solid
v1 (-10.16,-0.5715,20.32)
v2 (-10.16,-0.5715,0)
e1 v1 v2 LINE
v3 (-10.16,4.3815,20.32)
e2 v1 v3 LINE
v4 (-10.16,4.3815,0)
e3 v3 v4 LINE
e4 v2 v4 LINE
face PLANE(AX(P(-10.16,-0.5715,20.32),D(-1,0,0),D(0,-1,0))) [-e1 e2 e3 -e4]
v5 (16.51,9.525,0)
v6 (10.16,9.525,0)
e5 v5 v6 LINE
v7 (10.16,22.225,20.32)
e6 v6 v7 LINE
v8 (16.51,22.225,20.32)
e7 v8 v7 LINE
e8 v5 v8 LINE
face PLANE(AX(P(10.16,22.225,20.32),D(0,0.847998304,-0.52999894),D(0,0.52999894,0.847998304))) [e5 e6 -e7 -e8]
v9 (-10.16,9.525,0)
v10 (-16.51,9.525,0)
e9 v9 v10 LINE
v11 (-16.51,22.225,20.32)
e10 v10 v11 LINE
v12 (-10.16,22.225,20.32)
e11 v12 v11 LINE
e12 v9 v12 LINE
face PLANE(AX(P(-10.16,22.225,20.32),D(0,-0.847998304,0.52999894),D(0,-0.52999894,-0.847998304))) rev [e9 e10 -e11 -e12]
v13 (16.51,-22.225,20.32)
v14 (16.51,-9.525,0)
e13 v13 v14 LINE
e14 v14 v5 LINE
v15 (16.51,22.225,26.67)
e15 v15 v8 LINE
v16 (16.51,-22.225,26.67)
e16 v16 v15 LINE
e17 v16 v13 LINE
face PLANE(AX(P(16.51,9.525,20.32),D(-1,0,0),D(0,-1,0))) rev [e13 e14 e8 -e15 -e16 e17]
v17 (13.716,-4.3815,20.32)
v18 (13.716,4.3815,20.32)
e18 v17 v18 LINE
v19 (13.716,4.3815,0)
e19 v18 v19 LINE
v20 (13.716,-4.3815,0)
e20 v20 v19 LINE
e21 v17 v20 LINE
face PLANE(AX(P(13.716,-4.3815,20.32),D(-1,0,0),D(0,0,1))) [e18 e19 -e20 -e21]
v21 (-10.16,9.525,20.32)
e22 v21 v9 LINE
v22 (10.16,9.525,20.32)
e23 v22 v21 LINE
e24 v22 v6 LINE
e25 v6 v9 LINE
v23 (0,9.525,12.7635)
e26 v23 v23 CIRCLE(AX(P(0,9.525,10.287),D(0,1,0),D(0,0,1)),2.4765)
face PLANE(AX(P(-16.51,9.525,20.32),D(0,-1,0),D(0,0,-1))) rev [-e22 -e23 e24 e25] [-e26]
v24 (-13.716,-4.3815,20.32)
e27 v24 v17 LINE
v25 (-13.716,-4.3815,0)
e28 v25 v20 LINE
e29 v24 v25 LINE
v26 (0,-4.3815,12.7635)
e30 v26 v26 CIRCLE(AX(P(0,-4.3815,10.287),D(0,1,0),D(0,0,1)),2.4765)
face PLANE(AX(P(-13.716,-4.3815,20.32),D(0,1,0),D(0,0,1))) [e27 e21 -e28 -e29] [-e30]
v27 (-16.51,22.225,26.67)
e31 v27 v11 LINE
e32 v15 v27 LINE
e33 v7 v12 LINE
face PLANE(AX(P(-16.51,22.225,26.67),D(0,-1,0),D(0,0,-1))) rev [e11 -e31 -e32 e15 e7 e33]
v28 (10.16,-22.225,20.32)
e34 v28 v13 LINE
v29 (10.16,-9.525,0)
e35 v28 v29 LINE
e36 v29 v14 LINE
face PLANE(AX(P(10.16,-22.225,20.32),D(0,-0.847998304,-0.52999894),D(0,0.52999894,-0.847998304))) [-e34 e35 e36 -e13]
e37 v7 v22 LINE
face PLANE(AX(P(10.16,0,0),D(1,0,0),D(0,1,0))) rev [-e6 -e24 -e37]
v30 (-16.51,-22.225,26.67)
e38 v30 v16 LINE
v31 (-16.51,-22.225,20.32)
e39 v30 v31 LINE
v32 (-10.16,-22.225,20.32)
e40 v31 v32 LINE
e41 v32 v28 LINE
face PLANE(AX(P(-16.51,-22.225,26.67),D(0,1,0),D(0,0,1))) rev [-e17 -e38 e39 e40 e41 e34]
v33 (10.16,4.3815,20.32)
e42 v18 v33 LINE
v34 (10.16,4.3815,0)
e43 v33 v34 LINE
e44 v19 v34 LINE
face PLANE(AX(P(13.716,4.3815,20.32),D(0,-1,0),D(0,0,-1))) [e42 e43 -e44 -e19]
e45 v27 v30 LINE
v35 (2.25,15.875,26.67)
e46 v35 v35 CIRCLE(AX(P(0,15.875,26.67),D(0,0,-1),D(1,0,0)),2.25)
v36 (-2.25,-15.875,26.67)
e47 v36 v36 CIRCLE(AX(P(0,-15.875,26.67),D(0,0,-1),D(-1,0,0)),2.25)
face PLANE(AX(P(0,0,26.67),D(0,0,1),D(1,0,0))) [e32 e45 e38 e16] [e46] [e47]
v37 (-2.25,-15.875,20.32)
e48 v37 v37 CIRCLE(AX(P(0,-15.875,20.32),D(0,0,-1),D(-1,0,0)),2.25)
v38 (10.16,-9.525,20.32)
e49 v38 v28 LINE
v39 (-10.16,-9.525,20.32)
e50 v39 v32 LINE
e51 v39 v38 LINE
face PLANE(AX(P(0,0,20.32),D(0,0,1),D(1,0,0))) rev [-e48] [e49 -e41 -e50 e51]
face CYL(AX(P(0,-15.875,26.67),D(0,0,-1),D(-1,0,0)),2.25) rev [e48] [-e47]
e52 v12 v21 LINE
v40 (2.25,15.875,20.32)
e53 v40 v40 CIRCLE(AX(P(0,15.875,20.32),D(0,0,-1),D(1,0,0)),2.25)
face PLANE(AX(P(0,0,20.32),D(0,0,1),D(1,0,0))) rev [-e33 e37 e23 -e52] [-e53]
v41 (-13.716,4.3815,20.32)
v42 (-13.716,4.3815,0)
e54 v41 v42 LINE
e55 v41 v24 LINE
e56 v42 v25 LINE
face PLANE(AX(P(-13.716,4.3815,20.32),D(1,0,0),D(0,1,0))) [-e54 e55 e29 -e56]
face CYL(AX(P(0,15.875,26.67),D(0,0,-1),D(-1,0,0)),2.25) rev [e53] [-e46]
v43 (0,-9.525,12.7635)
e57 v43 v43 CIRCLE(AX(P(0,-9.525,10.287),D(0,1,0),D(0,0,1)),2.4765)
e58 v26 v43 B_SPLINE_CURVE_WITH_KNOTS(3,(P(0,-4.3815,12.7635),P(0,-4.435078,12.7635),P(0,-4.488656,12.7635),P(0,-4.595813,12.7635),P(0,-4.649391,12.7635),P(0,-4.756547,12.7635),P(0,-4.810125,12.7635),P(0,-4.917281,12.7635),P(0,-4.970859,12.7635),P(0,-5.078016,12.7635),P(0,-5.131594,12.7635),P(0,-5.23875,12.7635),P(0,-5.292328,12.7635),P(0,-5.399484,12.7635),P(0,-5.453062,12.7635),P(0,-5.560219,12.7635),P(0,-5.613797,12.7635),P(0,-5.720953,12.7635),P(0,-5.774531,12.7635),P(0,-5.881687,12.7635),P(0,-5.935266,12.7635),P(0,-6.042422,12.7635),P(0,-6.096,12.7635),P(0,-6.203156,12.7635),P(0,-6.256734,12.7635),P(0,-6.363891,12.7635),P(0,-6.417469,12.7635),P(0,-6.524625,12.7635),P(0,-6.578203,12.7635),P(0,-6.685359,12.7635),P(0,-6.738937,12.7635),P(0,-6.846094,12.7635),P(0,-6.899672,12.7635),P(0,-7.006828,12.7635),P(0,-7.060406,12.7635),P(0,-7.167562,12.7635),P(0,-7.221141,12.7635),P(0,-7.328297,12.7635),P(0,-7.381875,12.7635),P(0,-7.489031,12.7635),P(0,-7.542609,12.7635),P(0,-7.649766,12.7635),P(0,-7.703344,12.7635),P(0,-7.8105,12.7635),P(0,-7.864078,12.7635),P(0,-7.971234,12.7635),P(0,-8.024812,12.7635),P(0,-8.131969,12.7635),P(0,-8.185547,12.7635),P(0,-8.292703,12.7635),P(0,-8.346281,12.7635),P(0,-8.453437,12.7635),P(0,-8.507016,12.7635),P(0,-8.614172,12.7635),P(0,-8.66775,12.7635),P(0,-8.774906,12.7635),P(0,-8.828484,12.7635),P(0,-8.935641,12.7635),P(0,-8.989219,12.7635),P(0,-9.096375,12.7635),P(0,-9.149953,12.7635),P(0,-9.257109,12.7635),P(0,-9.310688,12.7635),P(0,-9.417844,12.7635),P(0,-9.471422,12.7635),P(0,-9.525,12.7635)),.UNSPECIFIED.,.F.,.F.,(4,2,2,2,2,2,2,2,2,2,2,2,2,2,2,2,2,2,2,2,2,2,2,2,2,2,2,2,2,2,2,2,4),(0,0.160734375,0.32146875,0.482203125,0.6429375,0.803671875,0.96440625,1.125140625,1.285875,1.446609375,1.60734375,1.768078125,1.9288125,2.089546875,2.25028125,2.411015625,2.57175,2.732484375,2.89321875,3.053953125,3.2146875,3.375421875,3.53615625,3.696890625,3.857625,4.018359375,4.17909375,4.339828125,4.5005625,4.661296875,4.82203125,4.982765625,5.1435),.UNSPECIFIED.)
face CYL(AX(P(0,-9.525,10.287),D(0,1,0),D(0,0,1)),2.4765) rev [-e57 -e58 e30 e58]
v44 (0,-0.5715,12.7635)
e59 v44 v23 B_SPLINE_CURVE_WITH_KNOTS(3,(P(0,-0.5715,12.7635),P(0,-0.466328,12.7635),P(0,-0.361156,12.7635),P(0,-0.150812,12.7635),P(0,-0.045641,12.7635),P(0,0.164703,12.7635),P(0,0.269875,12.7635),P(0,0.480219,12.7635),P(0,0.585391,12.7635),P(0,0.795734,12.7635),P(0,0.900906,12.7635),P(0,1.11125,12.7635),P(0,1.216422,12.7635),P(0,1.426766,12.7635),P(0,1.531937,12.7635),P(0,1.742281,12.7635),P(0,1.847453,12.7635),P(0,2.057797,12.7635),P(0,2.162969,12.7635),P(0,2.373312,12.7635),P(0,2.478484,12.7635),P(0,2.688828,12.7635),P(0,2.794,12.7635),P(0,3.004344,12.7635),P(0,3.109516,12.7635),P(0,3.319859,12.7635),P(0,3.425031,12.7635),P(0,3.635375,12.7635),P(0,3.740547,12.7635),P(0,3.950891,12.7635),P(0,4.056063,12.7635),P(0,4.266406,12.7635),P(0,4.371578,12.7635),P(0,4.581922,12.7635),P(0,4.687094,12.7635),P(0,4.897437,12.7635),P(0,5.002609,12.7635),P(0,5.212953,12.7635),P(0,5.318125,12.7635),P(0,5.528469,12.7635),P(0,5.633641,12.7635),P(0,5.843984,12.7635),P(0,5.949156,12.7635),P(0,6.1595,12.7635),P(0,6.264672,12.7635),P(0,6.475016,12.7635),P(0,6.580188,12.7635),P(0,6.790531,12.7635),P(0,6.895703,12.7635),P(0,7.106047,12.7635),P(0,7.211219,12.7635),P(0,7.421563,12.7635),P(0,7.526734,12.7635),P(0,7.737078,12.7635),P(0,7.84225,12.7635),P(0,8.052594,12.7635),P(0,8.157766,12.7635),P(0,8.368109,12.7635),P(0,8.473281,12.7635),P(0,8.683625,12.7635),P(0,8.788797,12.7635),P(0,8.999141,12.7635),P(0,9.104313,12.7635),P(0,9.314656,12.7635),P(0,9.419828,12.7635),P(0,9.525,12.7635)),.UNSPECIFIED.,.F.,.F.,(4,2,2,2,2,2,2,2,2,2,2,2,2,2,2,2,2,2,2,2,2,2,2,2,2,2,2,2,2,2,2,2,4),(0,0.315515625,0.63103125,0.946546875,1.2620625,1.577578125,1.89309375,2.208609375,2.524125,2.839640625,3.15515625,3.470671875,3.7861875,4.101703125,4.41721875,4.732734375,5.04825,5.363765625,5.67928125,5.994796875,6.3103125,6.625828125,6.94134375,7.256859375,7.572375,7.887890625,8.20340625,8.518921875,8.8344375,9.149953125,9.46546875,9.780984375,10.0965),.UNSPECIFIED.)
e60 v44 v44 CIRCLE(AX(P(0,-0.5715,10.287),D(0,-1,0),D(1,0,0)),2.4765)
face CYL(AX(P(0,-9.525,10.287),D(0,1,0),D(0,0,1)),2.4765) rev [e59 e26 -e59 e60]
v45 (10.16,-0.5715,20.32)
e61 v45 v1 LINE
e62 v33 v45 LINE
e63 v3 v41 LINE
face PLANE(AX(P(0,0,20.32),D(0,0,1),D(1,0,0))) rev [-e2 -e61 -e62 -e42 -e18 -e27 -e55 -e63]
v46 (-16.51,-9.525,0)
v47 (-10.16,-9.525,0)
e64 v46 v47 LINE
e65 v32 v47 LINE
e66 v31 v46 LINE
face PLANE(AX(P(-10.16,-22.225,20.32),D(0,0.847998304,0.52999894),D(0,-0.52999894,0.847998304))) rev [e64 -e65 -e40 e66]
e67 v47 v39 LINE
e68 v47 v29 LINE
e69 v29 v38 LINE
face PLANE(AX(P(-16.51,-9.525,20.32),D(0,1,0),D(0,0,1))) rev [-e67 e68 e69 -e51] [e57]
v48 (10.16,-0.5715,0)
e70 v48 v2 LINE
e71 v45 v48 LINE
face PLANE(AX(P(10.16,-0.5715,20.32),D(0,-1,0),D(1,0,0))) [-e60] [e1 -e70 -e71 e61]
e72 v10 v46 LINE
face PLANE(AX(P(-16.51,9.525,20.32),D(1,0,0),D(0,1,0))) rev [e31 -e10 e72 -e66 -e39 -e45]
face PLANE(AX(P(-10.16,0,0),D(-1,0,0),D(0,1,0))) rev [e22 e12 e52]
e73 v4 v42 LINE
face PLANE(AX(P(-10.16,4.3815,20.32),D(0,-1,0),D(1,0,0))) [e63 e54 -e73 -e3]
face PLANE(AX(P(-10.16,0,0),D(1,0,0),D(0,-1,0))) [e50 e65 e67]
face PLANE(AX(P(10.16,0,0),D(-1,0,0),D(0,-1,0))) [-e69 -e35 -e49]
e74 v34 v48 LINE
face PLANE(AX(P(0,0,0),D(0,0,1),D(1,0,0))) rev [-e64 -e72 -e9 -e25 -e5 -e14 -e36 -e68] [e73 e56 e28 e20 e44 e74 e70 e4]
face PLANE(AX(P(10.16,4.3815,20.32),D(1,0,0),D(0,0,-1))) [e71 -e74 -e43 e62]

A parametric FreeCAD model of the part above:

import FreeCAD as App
import Part
import Sketcher
from FreeCAD import Vector
Q = App.Units.Quantity


def add_polygon(sketch, points):
    """Adds a closed chain of lines whose ends are joined by coincident constraints."""
    first, n = sketch.GeometryCount, len(points)
    for a, b in zip(points, points[1:] + points[:1]):
        sketch.addGeometry(Part.LineSegment(App.Vector(*a, 0), App.Vector(*b, 0)), False)
    for i in range(n):
        sketch.addConstraint(Sketcher.Constraint("Coincident", first + i, 2, first + (i + 1) % n, 1))

doc = App.newDocument("Part")
body = doc.addObject("PartDesign::Body", "Body")

# Sketch on XY plane
sketch1 = body.newObject("Sketcher::SketchObject", "Sketch")
sketch1.AttachmentSupport = (doc.getObject("XY_Plane"), [""])
sketch1.MapMode = "FlatFace"
add_polygon(sketch1, [(-16.5, 9.5), (-16.5, -9.5), (16.5, -9.5), (16.5, 9.5)])  # lines 0-3
add_polygon(sketch1, [(-13.7, -4.4), (-13.7, 4.4), (-10.2, 4.4), (-10.2, -0.6), (10.2, -0.6), (10.2, 4.4), (13.7, 4.4), (13.7, -4.4)])  # lines 4-11
sketch1.addConstraint(Sketcher.Constraint("Vertical", 0))
sketch1.addConstraint(Sketcher.Constraint("Horizontal", 1))
sketch1.addConstraint(Sketcher.Constraint("Vertical", 2))
sketch1.addConstraint(Sketcher.Constraint("Horizontal", 3))
sketch1.addConstraint(Sketcher.Constraint("Vertical", 4))
sketch1.addConstraint(Sketcher.Constraint("Horizontal", 5))
sketch1.addConstraint(Sketcher.Constraint("Vertical", 6))
sketch1.addConstraint(Sketcher.Constraint("Horizontal", 7))
sketch1.addConstraint(Sketcher.Constraint("Vertical", 8))
sketch1.addConstraint(Sketcher.Constraint("Horizontal", 9))
sketch1.addConstraint(Sketcher.Constraint("Vertical", 10))
sketch1.addConstraint(Sketcher.Constraint("Horizontal", 11))
sketch1.addConstraint(Sketcher.Constraint("Symmetric", 0, 2, 2, 2, -1, 1))
sketch1.addConstraint(Sketcher.Constraint("Symmetric", 4, 2, 10, 2, -1, 1))
sketch1.addConstraint(Sketcher.Constraint("Symmetric", 5, 2, 8, 2, -2))
sketch1.addConstraint(Sketcher.Constraint("DistanceX", 1, 1, 1, 2, Q("1.3 in")))
sketch1.addConstraint(Sketcher.Constraint("DistanceX", 7, 1, 7, 2, Q("0.8 in")))
sketch1.addConstraint(Sketcher.Constraint("DistanceX", 5, 1, 5, 2, Q("0.14 in")))
sketch1.addConstraint(Sketcher.Constraint("DistanceY", 0, 2, 0, 1, Q("0.75 in")))
sketch1.addConstraint(Sketcher.Constraint("DistanceY", 4, 1, 4, 2, Q("0.345 in")))
sketch1.addConstraint(Sketcher.Constraint("DistanceY", 6, 2, 6, 1, Q("0.195 in")))
pad1 = body.newObject("PartDesign::Pad", "Pad")
pad1.Profile = sketch1
pad1.Length = Q("0.8 in")

# Sketch on XZ plane
sketch2 = body.newObject("Sketcher::SketchObject", "Sketch001")
sketch2.AttachmentSupport = (doc.getObject("XZ_Plane"), [""])
sketch2.MapMode = "FlatFace"
sketch2.AttachmentOffset = App.Placement(Vector(0, 0, -0.375 * 25.4), App.Rotation())
sketch2.addGeometry(Part.Circle(Vector(0, 10.3, 0), Vector(0, 0, 1), 2.5), False)
sketch2.addConstraint(Sketcher.Constraint("PointOnObject", 0, 3, -2))
sketch2.addConstraint(Sketcher.Constraint("Diameter", 0, Q("0.195 in")))
sketch2.addConstraint(Sketcher.Constraint("DistanceY", -1, 1, 0, 3, Q("0.405 in")))
pocket1 = body.newObject("PartDesign::Pocket", "Pocket")
pocket1.Profile = sketch2
pocket1.Type = "ThroughAll"
pocket1.Reversed = True

# Sketch on XY plane
sketch3 = body.newObject("Sketcher::SketchObject", "Sketch002")
sketch3.AttachmentSupport = (doc.getObject("XY_Plane"), [""])
sketch3.MapMode = "FlatFace"
sketch3.AttachmentOffset = App.Placement(Vector(0, 0, 0.8 * 25.4), App.Rotation())
add_polygon(sketch3, [(-17, 22), (-17, -22), (17, -22), (17, 22)])  # lines 0-3
sketch3.addConstraint(Sketcher.Constraint("Vertical", 0))
sketch3.addConstraint(Sketcher.Constraint("Horizontal", 1))
sketch3.addConstraint(Sketcher.Constraint("Vertical", 2))
sketch3.addConstraint(Sketcher.Constraint("Horizontal", 3))
sketch3.addConstraint(Sketcher.Constraint("Symmetric", 0, 2, 2, 2, -1, 1))
sketch3.addConstraint(Sketcher.Constraint("DistanceX", 1, 1, 1, 2, Q("1.3 in")))
sketch3.addConstraint(Sketcher.Constraint("DistanceY", 0, 2, 0, 1, Q("1.75 in")))
pad2 = body.newObject("PartDesign::Pad", "Pad001")
pad2.Profile = sketch3
pad2.Length = Q("0.25 in")

# Sketch on YZ plane
sketch4 = body.newObject("Sketcher::SketchObject", "Sketch003")
sketch4.AttachmentSupport = (doc.getObject("YZ_Plane"), [""])
sketch4.MapMode = "FlatFace"
sketch4.AttachmentOffset = App.Placement(Vector(0, 0, 0.65 * 25.4), App.Rotation())
add_polygon(sketch4, [(-22, 20), (-10, 0), (-10, 20)])  # lines 0-2
add_polygon(sketch4, [(10, 0), (22, 20), (10, 20)])  # lines 3-5
sketch4.addConstraint(Sketcher.Constraint("Vertical", 1))
sketch4.addConstraint(Sketcher.Constraint("Horizontal", 2))
sketch4.addConstraint(Sketcher.Constraint("Horizontal", 4))
sketch4.addConstraint(Sketcher.Constraint("Vertical", 5))
sketch4.addConstraint(Sketcher.Constraint("Symmetric", 0, 2, 5, 2, -1, 1))
sketch4.addConstraint(Sketcher.Constraint("Symmetric", 2, 2, 3, 2, -2))
sketch4.addConstraint(Sketcher.Constraint("PointOnObject", 0, 2, -1))
sketch4.addConstraint(Sketcher.Constraint("DistanceX", 2, 2, 2, 1, Q("0.5 in")))
sketch4.addConstraint(Sketcher.Constraint("DistanceY", 1, 1, 1, 2, Q("0.8 in")))
sketch4.addConstraint(Sketcher.Constraint("DistanceX", 1, 2, 3, 2, Q("1.25 in")))
pad3 = body.newObject("PartDesign::Pad", "Pad002")
pad3.Profile = sketch4
pad3.Length = Q("0.25 in")
pad3.Reversed = True
doc.recompute()

mirrored = body.newObject("PartDesign::Mirrored", "Mirrored")
mirrored.Originals = [pad3]
mirrored.MirrorPlane = (doc.getObject("YZ_Plane"), [""])
body.Tip = mirrored

# Sketch on XY plane
sketch5 = body.newObject("Sketcher::SketchObject", "Sketch004")
sketch5.AttachmentSupport = (doc.getObject("XY_Plane"), [""])
sketch5.MapMode = "FlatFace"
sketch5.AttachmentOffset = App.Placement(Vector(0, 0, 0.8 * 25.4), App.Rotation())
sketch5.addGeometry(Part.Circle(Vector(0, -15.9, 0), Vector(0, 0, 1), 2.2), False)
sketch5.addGeometry(Part.Circle(Vector(0, 15.9, 0), Vector(0, 0, 1), 2.2), False)
sketch5.addConstraint(Sketcher.Constraint("Equal", 0, 1))
sketch5.addConstraint(Sketcher.Constraint("Symmetric", 0, 3, 1, 3, -1, 1))
sketch5.addConstraint(Sketcher.Constraint("PointOnObject", 0, 3, -2))
sketch5.addConstraint(Sketcher.Constraint("Diameter", 0, Q("4.5 mm")))
sketch5.addConstraint(Sketcher.Constraint("DistanceY", 0, 3, 1, 3, Q("1.25 in")))
pocket2 = body.newObject("PartDesign::Pocket", "Pocket001")
pocket2.Profile = sketch5
pocket2.Type = "ThroughAll"
pocket2.Reversed = True

doc.recompute()
